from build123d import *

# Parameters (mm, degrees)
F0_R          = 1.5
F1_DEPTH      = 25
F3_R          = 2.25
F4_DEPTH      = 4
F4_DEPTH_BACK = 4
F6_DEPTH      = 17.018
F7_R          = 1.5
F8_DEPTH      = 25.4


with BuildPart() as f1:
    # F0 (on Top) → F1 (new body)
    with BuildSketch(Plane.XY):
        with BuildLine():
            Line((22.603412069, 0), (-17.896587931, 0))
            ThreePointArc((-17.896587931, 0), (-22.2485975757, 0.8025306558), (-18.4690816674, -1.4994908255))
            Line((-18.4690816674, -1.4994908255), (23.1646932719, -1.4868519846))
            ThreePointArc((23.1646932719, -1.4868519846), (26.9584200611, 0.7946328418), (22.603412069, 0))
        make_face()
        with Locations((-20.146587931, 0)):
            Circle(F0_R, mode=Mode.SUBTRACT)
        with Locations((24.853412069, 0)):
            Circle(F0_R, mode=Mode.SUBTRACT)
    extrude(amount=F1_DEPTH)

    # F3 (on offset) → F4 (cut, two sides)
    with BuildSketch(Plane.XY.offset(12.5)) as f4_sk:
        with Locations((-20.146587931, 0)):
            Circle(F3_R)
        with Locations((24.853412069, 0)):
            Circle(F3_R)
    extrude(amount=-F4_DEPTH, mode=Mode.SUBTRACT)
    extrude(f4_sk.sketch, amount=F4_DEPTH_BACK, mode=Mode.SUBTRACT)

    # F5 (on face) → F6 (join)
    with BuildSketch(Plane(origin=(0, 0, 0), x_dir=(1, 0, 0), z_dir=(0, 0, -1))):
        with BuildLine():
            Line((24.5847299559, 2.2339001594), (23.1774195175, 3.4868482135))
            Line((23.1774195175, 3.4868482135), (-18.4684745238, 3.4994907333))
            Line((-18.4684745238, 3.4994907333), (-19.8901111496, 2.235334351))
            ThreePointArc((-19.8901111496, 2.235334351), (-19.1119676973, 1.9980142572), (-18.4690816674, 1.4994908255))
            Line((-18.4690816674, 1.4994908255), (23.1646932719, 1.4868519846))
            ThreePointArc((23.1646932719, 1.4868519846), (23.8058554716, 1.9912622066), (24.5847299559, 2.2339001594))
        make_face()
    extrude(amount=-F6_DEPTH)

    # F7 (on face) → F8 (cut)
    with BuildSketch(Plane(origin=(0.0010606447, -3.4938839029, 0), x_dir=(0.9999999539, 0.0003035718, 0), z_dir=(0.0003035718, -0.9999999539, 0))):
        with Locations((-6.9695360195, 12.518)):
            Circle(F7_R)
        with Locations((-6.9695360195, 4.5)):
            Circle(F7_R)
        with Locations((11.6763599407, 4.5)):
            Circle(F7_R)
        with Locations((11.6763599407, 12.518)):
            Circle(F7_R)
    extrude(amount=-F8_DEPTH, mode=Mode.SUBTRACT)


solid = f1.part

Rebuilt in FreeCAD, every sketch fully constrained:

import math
import FreeCAD as App
import Part
import Sketcher

V = App.Vector

doc = App.newDocument("Part")
params = doc.addObject("Spreadsheet::Sheet", "Params")
for row, (alias, value) in enumerate([
    ("sketch1_diameter", "3 mm"),
    ("sketch1_radius", "2.25 mm"),
    ("sketch1_width", "40.5 mm"),
    ("pad1_length", "25 mm"),
    ("sketch2_diameter", "4.5 mm"),
    ("pocket1_length", "4 mm"),
    ("pocket1_length2", "4 mm"),
    ("sketch3_radius", "2.25 mm"),
    ("pad2_length", "17.018 mm"),
    ("sketch4_diameter", "3 mm"),
    ("pocket2_length", "25.4 mm"),
], start=1):
    params.set(f"A{row}", alias)
    params.set(f"B{row}", "=" + value)
    params.setAlias(f"B{row}", alias)

body = doc.addObject("PartDesign::Body", "Body")

# Sketch on XY plane
sketch1 = body.newObject("Sketcher::SketchObject", "Sketch")
sketch1.AttachmentSupport = (doc.getObject("XY_Plane"), [""])
sketch1.MapMode = "FlatFace"
sketch1.addGeometry(Part.LineSegment(V(22.6, 0, 0), V(-17.9, 0, 0)), False)
sketch1.addGeometry(Part.ArcOfCircle(Part.Circle(V(-20.1, 0, 0), V(0, 0, 1), 2.2), math.radians(0), math.radians(318)), False)
sketch1.addGeometry(Part.LineSegment(V(-18.5, -1.5, 0), V(23.2, -1.5, 0)), False)
sketch1.addGeometry(Part.ArcOfCircle(Part.Circle(V(24.9, 0, 0), V(0, 0, 1), 2.2), math.radians(-139), math.radians(180)), False)
sketch1.addGeometry(Part.Circle(V(-20.1, 0, 0), V(0, 0, 1), 1.5), False)
sketch1.addGeometry(Part.Circle(V(24.9, 0, 0), V(0, 0, 1), 1.5), False)
sketch1.addConstraint(Sketcher.Constraint("Coincident", 0, 2, 1, 1))
sketch1.addConstraint(Sketcher.Constraint("Coincident", 1, 2, 2, 1))
sketch1.addConstraint(Sketcher.Constraint("Coincident", 2, 2, 3, 1))
sketch1.addConstraint(Sketcher.Constraint("Coincident", 3, 2, 0, 1))
sketch1.addConstraint(Sketcher.Constraint("Horizontal", 0))
sketch1.addConstraint(Sketcher.Constraint("Coincident", 4, 3, 1, 3))
sketch1.addConstraint(Sketcher.Constraint("Coincident", 5, 3, 3, 3))
sketch1.addConstraint(Sketcher.Constraint("Equal", 1, 3))
sketch1.addConstraint(Sketcher.Constraint("Equal", 4, 5))
sketch1.addConstraint(Sketcher.Constraint("PointOnObject", 1, 3, -1))
sketch1.addConstraint(Sketcher.Constraint("PointOnObject", 3, 3, -1))
sketch1.addConstraint(Sketcher.Constraint("PointOnObject", 0, 2, -1))
sketch1.addConstraint(Sketcher.Constraint("Diameter", 4, 3.0))
sketch1.addConstraint(Sketcher.Constraint("Radius", 1, 2.25))
sketch1.addConstraint(Sketcher.Constraint("DistanceX", 0, 2, 0, 1, 40.5))
sketch1.addConstraint(Sketcher.Constraint("DistanceX", 1, 2, -1, 1, 18.469082))
sketch1.addConstraint(Sketcher.Constraint("DistanceY", 1, 2, -1, 1, 1.499491))
sketch1.addConstraint(Sketcher.Constraint("DistanceY", 2, 2, -1, 1, 1.486852))
sketch1.setExpression("Constraints[12]", "Params.sketch1_diameter")
sketch1.setExpression("Constraints[13]", "Params.sketch1_radius")
sketch1.setExpression("Constraints[14]", "Params.sketch1_width")
pad1 = body.newObject("PartDesign::Pad", "Pad")
pad1.Profile = sketch1
pad1.setExpression("Length", "Params.pad1_length")

# Sketch on XY plane
sketch2 = body.newObject("Sketcher::SketchObject", "Sketch001")
sketch2.AttachmentSupport = (doc.getObject("XY_Plane"), [""])
sketch2.MapMode = "FlatFace"
sketch2.AttachmentOffset = App.Placement(V(0, 0, 12.5), App.Rotation())
sketch2.addGeometry(Part.Circle(V(-20.1, 0, 0), V(0, 0, 1), 2.2), False)
sketch2.addGeometry(Part.Circle(V(24.9, 0, 0), V(0, 0, 1), 2.2), False)
sketch2.addConstraint(Sketcher.Constraint("Equal", 0, 1))
sketch2.addConstraint(Sketcher.Constraint("PointOnObject", 0, 3, -1))
sketch2.addConstraint(Sketcher.Constraint("PointOnObject", 1, 3, -1))
sketch2.addConstraint(Sketcher.Constraint("Diameter", 0, 4.5))
sketch2.addConstraint(Sketcher.Constraint("DistanceX", 0, 3, 1, 3, 45.0))
sketch2.addConstraint(Sketcher.Constraint("DistanceX", 0, 3, -1, 1, 20.146588))
sketch2.setExpression("Constraints[3]", "Params.sketch2_diameter")
pocket1 = body.newObject("PartDesign::Pocket", "Pocket")
pocket1.Profile = sketch2
pocket1.Type = "TwoLengths"
pocket1.setExpression("Length", "Params.pocket1_length")
pocket1.setExpression("Length2", "Params.pocket1_length2")

# Sketch on XY plane
sketch3 = body.newObject("Sketcher::SketchObject", "Sketch002")
sketch3.AttachmentSupport = (doc.getObject("XY_Plane"), [""])
sketch3.MapMode = "FlatFace"
sketch3.addGeometry(Part.LineSegment(V(24.6, -2.2, 0), V(23.2, -3.5, 0)), False)
sketch3.addGeometry(Part.LineSegment(V(23.2, -3.5, 0), V(-18.5, -3.5, 0)), False)
sketch3.addGeometry(Part.LineSegment(V(-18.5, -3.5, 0), V(-19.9, -2.2, 0)), False)
sketch3.addGeometry(Part.ArcOfCircle(Part.Circle(V(-20.1, 0, 0), V(0, 0, 1), 2.3), math.radians(-83), math.radians(-42)), False)
sketch3.addGeometry(Part.LineSegment(V(-18.5, -1.5, 0), V(23.2, -1.5, 0)), False)
sketch3.addGeometry(Part.ArcOfCircle(Part.Circle(V(24.9, 0, 0), V(0, 0, 1), 2.2), math.radians(-139), math.radians(-97)), False)
sketch3.addConstraint(Sketcher.Constraint("Coincident", 0, 2, 1, 1))
sketch3.addConstraint(Sketcher.Constraint("Coincident", 1, 2, 2, 1))
sketch3.addConstraint(Sketcher.Constraint("Coincident", 2, 2, 3, 1))
sketch3.addConstraint(Sketcher.Constraint("Coincident", 3, 2, 4, 1))
sketch3.addConstraint(Sketcher.Constraint("Coincident", 4, 2, 5, 1))
sketch3.addConstraint(Sketcher.Constraint("Coincident", 5, 2, 0, 1))
sketch3.addConstraint(Sketcher.Constraint("Equal", 3, 5))
sketch3.addConstraint(Sketcher.Constraint("PointOnObject", 3, 3, -1))
sketch3.addConstraint(Sketcher.Constraint("PointOnObject", 5, 3, -1))
sketch3.addConstraint(Sketcher.Constraint("Parallel", 1, 4))
sketch3.addConstraint(Sketcher.Constraint("Radius", 3, 2.25))
sketch3.addConstraint(Sketcher.Constraint("DistanceX", 3, 3, 5, 3, 45.0))
sketch3.addConstraint(Sketcher.Constraint("DistanceY", 1, 2, 3, 2, 2.0))
sketch3.addConstraint(Sketcher.Constraint("DistanceY", 5, 2, -1, 1, 2.2339))
sketch3.addConstraint(Sketcher.Constraint("DistanceX", 3, 2, 0, 2, 41.646501))
sketch3.addConstraint(Sketcher.Constraint("Distance", 0, 1.884251))
sketch3.addConstraint(Sketcher.Constraint("DistanceX", -1, 1, 0, 2, 23.17742))
sketch3.addConstraint(Sketcher.Constraint("DistanceY", 0, 2, -1, 1, 3.486848))
sketch3.addConstraint(Sketcher.Constraint("DistanceX", 2, 2, -1, 1, 19.890111))
sketch3.addConstraint(Sketcher.Constraint("Distance", 1, 41.645896))
sketch3.setExpression("Constraints[10]", "Params.sketch3_radius")
pad2 = body.newObject("PartDesign::Pad", "Pad001")
pad2.Profile = sketch3
pad2.setExpression("Length", "Params.pad2_length")

# Sketch on an angled plane
sketch4 = body.newObject("Sketcher::SketchObject", "Sketch003")
sketch4.Placement = App.Placement(V(0.001061, -3.493884, 0), App.Rotation(V(0.999999954, 0.000303572, 0), V(0, 0, 1), V(0.000303572, -0.999999954, 0), "ZXY"))
sketch4.addGeometry(Part.Circle(V(-7, 12.5, 0), V(0, 0, 1), 1.5), False)
sketch4.addGeometry(Part.Circle(V(-7, 4.5, 0), V(0, 0, 1), 1.5), False)
sketch4.addGeometry(Part.Circle(V(11.7, 4.5, 0), V(0, 0, 1), 1.5), False)
sketch4.addGeometry(Part.Circle(V(11.7, 12.5, 0), V(0, 0, 1), 1.5), False)
sketch4.addConstraint(Sketcher.Constraint("Equal", 0, 1))
sketch4.addConstraint(Sketcher.Constraint("Equal", 1, 2))
sketch4.addConstraint(Sketcher.Constraint("Equal", 2, 3))
sketch4.addConstraint(Sketcher.Constraint("Horizontal", 1, 3, 2, 3))
sketch4.addConstraint(Sketcher.Constraint("Horizontal", 0, 3, 3, 3))
sketch4.addConstraint(Sketcher.Constraint("Vertical", 0, 3, 1, 3))
sketch4.addConstraint(Sketcher.Constraint("Vertical", 2, 3, 3, 3))
sketch4.addConstraint(Sketcher.Constraint("Diameter", 0, 3.0))
sketch4.addConstraint(Sketcher.Constraint("DistanceY", -1, 1, 1, 3, 4.5))
sketch4.addConstraint(Sketcher.Constraint("DistanceY", -1, 1, 0, 3, 12.518))
sketch4.addConstraint(Sketcher.Constraint("DistanceX", -1, 1, 2, 3, 11.67636))
sketch4.addConstraint(Sketcher.Constraint("DistanceX", 0, 3, -1, 1, 6.969536))
sketch4.setExpression("Constraints[7]", "Params.sketch4_diameter")
pocket2 = body.newObject("PartDesign::Pocket", "Pocket001")
pocket2.Profile = sketch4
pocket2.setExpression("Length", "Params.pocket2_length")

doc.recompute()
